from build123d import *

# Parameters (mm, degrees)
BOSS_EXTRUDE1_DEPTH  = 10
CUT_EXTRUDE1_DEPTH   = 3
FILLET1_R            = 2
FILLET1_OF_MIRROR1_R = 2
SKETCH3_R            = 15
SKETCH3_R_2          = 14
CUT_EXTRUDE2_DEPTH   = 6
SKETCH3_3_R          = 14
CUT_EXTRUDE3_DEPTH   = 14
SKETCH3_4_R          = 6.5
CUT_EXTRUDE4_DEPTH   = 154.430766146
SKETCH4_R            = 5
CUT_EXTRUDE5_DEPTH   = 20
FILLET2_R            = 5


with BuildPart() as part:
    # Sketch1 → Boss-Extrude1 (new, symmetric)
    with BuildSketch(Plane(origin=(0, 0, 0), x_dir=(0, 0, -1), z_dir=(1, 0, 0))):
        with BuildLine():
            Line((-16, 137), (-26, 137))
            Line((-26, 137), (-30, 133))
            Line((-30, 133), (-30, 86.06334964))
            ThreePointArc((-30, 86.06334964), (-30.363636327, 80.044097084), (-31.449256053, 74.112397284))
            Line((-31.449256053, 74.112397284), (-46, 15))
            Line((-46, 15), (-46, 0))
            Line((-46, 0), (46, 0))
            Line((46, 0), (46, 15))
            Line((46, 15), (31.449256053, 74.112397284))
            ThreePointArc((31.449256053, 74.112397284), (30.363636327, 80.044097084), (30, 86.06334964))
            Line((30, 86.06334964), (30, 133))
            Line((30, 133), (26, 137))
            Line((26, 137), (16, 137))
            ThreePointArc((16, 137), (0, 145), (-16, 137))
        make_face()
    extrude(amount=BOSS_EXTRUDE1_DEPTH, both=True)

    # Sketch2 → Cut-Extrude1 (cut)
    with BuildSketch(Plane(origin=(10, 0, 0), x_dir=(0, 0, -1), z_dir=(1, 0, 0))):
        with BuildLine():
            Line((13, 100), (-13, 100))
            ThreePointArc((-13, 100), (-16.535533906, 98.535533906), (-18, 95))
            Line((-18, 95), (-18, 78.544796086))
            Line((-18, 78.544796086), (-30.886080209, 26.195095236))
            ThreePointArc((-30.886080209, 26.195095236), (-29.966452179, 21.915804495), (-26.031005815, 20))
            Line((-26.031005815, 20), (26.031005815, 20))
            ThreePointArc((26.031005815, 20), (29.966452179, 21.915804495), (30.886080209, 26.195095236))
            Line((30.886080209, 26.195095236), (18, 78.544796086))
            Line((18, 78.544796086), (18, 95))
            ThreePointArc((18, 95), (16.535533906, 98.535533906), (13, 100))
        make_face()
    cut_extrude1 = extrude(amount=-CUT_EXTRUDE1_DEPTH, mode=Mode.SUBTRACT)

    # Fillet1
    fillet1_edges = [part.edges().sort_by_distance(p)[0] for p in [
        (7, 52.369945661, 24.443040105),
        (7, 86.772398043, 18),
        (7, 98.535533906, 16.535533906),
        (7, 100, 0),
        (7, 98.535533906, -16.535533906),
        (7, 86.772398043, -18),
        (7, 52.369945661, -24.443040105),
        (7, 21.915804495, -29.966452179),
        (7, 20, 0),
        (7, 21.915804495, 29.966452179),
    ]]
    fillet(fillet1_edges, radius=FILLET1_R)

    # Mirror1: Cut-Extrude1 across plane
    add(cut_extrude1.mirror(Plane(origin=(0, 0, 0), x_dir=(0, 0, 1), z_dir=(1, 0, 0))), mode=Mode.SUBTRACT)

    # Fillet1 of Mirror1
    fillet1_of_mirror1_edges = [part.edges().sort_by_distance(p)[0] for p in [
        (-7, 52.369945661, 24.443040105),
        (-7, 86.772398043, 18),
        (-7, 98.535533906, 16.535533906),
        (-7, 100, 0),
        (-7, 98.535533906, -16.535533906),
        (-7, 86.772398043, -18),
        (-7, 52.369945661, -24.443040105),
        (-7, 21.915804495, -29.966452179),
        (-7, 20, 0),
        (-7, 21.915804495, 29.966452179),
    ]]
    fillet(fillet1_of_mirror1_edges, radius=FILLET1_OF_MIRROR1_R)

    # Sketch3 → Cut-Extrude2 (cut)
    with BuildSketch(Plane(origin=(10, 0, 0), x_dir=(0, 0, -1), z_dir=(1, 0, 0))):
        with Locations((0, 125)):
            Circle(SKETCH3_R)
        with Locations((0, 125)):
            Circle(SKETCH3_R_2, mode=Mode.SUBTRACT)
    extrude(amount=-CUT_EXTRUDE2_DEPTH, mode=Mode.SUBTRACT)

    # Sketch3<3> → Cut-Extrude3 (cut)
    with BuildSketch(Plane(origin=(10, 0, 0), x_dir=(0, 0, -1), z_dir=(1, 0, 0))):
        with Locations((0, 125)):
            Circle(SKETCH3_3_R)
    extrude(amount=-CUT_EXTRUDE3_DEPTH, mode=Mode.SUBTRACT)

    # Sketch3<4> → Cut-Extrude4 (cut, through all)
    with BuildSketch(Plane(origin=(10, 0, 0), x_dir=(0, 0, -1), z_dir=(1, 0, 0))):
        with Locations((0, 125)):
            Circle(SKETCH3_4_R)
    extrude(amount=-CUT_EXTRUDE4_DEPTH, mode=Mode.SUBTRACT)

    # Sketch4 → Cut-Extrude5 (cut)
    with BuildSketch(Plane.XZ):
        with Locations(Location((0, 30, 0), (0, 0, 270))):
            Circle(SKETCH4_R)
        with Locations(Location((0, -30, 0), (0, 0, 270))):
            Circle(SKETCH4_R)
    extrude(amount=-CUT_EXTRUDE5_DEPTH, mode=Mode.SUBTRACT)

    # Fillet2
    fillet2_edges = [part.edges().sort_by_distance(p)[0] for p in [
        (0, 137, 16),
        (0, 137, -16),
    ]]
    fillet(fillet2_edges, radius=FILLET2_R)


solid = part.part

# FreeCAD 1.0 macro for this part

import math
import FreeCAD as App
import Part
import Sketcher


def edges_at(feature, points):
    """Names of the edges that pass closest to the given points."""
    edges = feature.Shape.Edges
    near = lambda p: min(range(len(edges)), key=lambda i: edges[i].distToShape(Part.Vertex(*p))[0])
    return sorted({f"Edge{near(p) + 1}" for p in points})

doc = App.newDocument("Part")
body = doc.addObject("PartDesign::Body", "Body")

sketch1 = body.newObject("Sketcher::SketchObject", "Sketch")
sketch1.AttachmentSupport = (doc.getObject("YZ_Plane"), [""])
sketch1.MapMode = "FlatFace"
sketch1.addGeometry(Part.LineSegment(App.Vector(137, 16, 0), App.Vector(137, 26, 0)), False)
sketch1.addGeometry(Part.LineSegment(App.Vector(137, 26, 0), App.Vector(133, 30, 0)), False)
sketch1.addGeometry(Part.LineSegment(App.Vector(133, 30, 0), App.Vector(86, 30, 0)), False)
sketch1.addGeometry(Part.ArcOfCircle(Part.Circle(App.Vector(86, 80, 0), App.Vector(0, 0, 1), 50), math.radians(-103.83), math.radians(-90)), False)
sketch1.addGeometry(Part.LineSegment(App.Vector(74, 31, 0), App.Vector(15, 46, 0)), False)
sketch1.addGeometry(Part.LineSegment(App.Vector(15, 46, 0), App.Vector(0, 46, 0)), False)
sketch1.addGeometry(Part.LineSegment(App.Vector(0, 46, 0), App.Vector(0, -46, 0)), False)
sketch1.addGeometry(Part.LineSegment(App.Vector(0, -46, 0), App.Vector(15, -46, 0)), False)
sketch1.addGeometry(Part.LineSegment(App.Vector(15, -46, 0), App.Vector(74, -31, 0)), False)
sketch1.addGeometry(Part.ArcOfCircle(Part.Circle(App.Vector(86, -80, 0), App.Vector(0, 0, 1), 50), math.radians(90), math.radians(103.83)), False)
sketch1.addGeometry(Part.LineSegment(App.Vector(86, -30, 0), App.Vector(133, -30, 0)), False)
sketch1.addGeometry(Part.LineSegment(App.Vector(133, -30, 0), App.Vector(137, -26, 0)), False)
sketch1.addGeometry(Part.LineSegment(App.Vector(137, -26, 0), App.Vector(137, -16, 0)), False)
sketch1.addGeometry(Part.ArcOfCircle(Part.Circle(App.Vector(125, 0, 0), App.Vector(0, 0, 1), 20), math.radians(-53), math.radians(53)), False)
sketch1.addConstraint(Sketcher.Constraint("Coincident", 0, 2, 1, 1))
sketch1.addConstraint(Sketcher.Constraint("Coincident", 1, 2, 2, 1))
sketch1.addConstraint(Sketcher.Constraint("Tangent", 2, 2, 3, 2))
sketch1.addConstraint(Sketcher.Constraint("Tangent", 3, 1, 4, 1))
sketch1.addConstraint(Sketcher.Constraint("Coincident", 4, 2, 5, 1))
sketch1.addConstraint(Sketcher.Constraint("Coincident", 5, 2, 6, 1))
sketch1.addConstraint(Sketcher.Constraint("Coincident", 6, 2, 7, 1))
sketch1.addConstraint(Sketcher.Constraint("Coincident", 7, 2, 8, 1))
sketch1.addConstraint(Sketcher.Constraint("Tangent", 8, 2, 9, 2))
sketch1.addConstraint(Sketcher.Constraint("Tangent", 9, 1, 10, 1))
sketch1.addConstraint(Sketcher.Constraint("Coincident", 10, 2, 11, 1))
sketch1.addConstraint(Sketcher.Constraint("Coincident", 11, 2, 12, 1))
sketch1.addConstraint(Sketcher.Constraint("Coincident", 12, 2, 13, 1))
sketch1.addConstraint(Sketcher.Constraint("Coincident", 13, 2, 0, 1))
sketch1.addConstraint(Sketcher.Constraint("Vertical", 0))
sketch1.addConstraint(Sketcher.Constraint("Horizontal", 2))
sketch1.addConstraint(Sketcher.Constraint("Horizontal", 5))
sketch1.addConstraint(Sketcher.Constraint("Vertical", 6))
sketch1.addConstraint(Sketcher.Constraint("Horizontal", 7))
sketch1.addConstraint(Sketcher.Constraint("Horizontal", 10))
sketch1.addConstraint(Sketcher.Constraint("Vertical", 12))
sketch1.addConstraint(Sketcher.Constraint("Equal", 3, 9))
sketch1.addConstraint(Sketcher.Constraint("Symmetric", 5, 2, 6, 2, -1, 1))
sketch1.addConstraint(Sketcher.Constraint("Symmetric", 3, 3, 9, 3, -1))
sketch1.addConstraint(Sketcher.Constraint("Symmetric", 0, 2, 11, 2, -1))
sketch1.addConstraint(Sketcher.Constraint("PointOnObject", 13, 3, -1))
sketch1.addConstraint(Sketcher.Constraint("Perpendicular", 1, 11))
sketch1.addConstraint(Sketcher.Constraint("Vertical", 4, 2, 7, 2))
sketch1.addConstraint(Sketcher.Constraint("Vertical", 1, 2, 10, 2))
sketch1.addConstraint(Sketcher.Constraint("Radius", 3, 50.0))
sketch1.addConstraint(Sketcher.Constraint("Radius", 13, 20.0))
sketch1.addConstraint(Sketcher.Constraint("DistanceX", 5, 2, 5, 1, 15.0))
sketch1.addConstraint(Sketcher.Constraint("DistanceY", 0, 1, 0, 2, 10.0))
sketch1.addConstraint(Sketcher.Constraint("DistanceY", 6, 2, 6, 1, 92.0))
sketch1.addConstraint(Sketcher.Constraint("DistanceY", -1, 1, 3, 3, 80.0))
sketch1.addConstraint(Sketcher.Constraint("DistanceX", -1, 1, 13, 3, 125.0))
sketch1.addConstraint(Sketcher.Constraint("DistanceX", -1, 1, 0, 2, 137.0))
sketch1.addConstraint(Sketcher.Constraint("DistanceX", 2, 2, 2, 1, 46.93665))
pad1 = body.newObject("PartDesign::Pad", "Pad")
pad1.Profile = sketch1
pad1.Length = 20
pad1.Midplane = True

sketch2 = body.newObject("Sketcher::SketchObject", "Sketch001")
sketch2.AttachmentSupport = (doc.getObject("YZ_Plane"), [""])
sketch2.MapMode = "FlatFace"
sketch2.AttachmentOffset = App.Placement(App.Vector(0, 0, 10), App.Rotation())
sketch2.addGeometry(Part.LineSegment(App.Vector(100, -13, 0), App.Vector(100, 13, 0)), False)
sketch2.addGeometry(Part.ArcOfCircle(Part.Circle(App.Vector(95, 13, 0), App.Vector(0, 0, 1), 5), math.radians(0), math.radians(90)), False)
sketch2.addGeometry(Part.LineSegment(App.Vector(95, 18, 0), App.Vector(79, 18, 0)), False)
sketch2.addGeometry(Part.LineSegment(App.Vector(79, 18, 0), App.Vector(26, 31, 0)), False)
sketch2.addGeometry(Part.ArcOfCircle(Part.Circle(App.Vector(25, 26, 0), App.Vector(0, 0, 1), 5), math.radians(76), math.radians(180)), False)
sketch2.addGeometry(Part.LineSegment(App.Vector(20, 26, 0), App.Vector(20, -26, 0)), False)
sketch2.addGeometry(Part.ArcOfCircle(Part.Circle(App.Vector(25, -26, 0), App.Vector(0, 0, 1), 5), math.radians(180), math.radians(284)), False)
sketch2.addGeometry(Part.LineSegment(App.Vector(26, -31, 0), App.Vector(79, -18, 0)), False)
sketch2.addGeometry(Part.LineSegment(App.Vector(79, -18, 0), App.Vector(95, -18, 0)), False)
sketch2.addGeometry(Part.ArcOfCircle(Part.Circle(App.Vector(95, -13, 0), App.Vector(0, 0, 1), 5), math.radians(-90), math.radians(0)), False)
sketch2.addConstraint(Sketcher.Constraint("Tangent", 0, 2, 1, 1))
sketch2.addConstraint(Sketcher.Constraint("Tangent", 1, 2, 2, 1))
sketch2.addConstraint(Sketcher.Constraint("Coincident", 2, 2, 3, 1))
sketch2.addConstraint(Sketcher.Constraint("Tangent", 3, 2, 4, 1))
sketch2.addConstraint(Sketcher.Constraint("Tangent", 4, 2, 5, 1))
sketch2.addConstraint(Sketcher.Constraint("Tangent", 5, 2, 6, 1))
sketch2.addConstraint(Sketcher.Constraint("Tangent", 6, 2, 7, 1))
sketch2.addConstraint(Sketcher.Constraint("Coincident", 7, 2, 8, 1))
sketch2.addConstraint(Sketcher.Constraint("Tangent", 8, 2, 9, 1))
sketch2.addConstraint(Sketcher.Constraint("Tangent", 9, 2, 0, 1))
sketch2.addConstraint(Sketcher.Constraint("Vertical", 0))
sketch2.addConstraint(Sketcher.Constraint("Horizontal", 2))
sketch2.addConstraint(Sketcher.Constraint("Vertical", 5))
sketch2.addConstraint(Sketcher.Constraint("Horizontal", 8))
sketch2.addConstraint(Sketcher.Constraint("Equal", 1, 4))
sketch2.addConstraint(Sketcher.Constraint("Equal", 4, 6))
sketch2.addConstraint(Sketcher.Constraint("Equal", 6, 9))
sketch2.addConstraint(Sketcher.Constraint("Symmetric", 3, 2, 6, 2, -1))
sketch2.addConstraint(Sketcher.Constraint("Vertical", 2, 2, 7, 2))
sketch2.addConstraint(Sketcher.Constraint("Radius", 1, 5.0))
sketch2.addConstraint(Sketcher.Constraint("DistanceY", 0, 1, 0, 2, 26.0))
sketch2.addConstraint(Sketcher.Constraint("DistanceX", -1, 1, 1, 3, 95.0))
sketch2.addConstraint(Sketcher.Constraint("DistanceX", -1, 1, 4, 3, 25.0))
sketch2.addConstraint(Sketcher.Constraint("DistanceY", 5, 2, 5, 1, 52.062012))
sketch2.addConstraint(Sketcher.Constraint("DistanceX", 3, 2, 2, 2, 52.349701))
pocket1 = body.newObject("PartDesign::Pocket", "Pocket")
pocket1.Profile = sketch2
pocket1.Length = 3
doc.recompute()

fillet = body.newObject("PartDesign::Fillet", "Fillet")
fillet.Base = (pocket1, edges_at(pocket1, [
    (7, 52.37, 24.443),
    (7, 86.772, 18),
    (7, 98.536, 16.536),
    (7, 100, 0),
    (7, 98.536, -16.536),
    (7, 86.772, -18),
    (7, 52.37, -24.443),
    (7, 21.916, -29.966),
    (7, 20, 0),
    (7, 21.916, 29.966),
]))
fillet.Radius = 2
doc.recompute()

mirrored = body.newObject("PartDesign::Mirrored", "Mirrored")
mirrored.Originals = [pocket1]
mirrored.MirrorPlane = (doc.getObject("YZ_Plane"), [""])
body.Tip = mirrored
doc.recompute()

fillet2 = body.newObject("PartDesign::Fillet", "Fillet001")
fillet2.Base = (mirrored, edges_at(mirrored, [
    (-7, 52.37, 24.443),
    (-7, 86.772, 18),
    (-7, 98.536, 16.536),
    (-7, 100, 0),
    (-7, 98.536, -16.536),
    (-7, 86.772, -18),
    (-7, 52.37, -24.443),
    (-7, 21.916, -29.966),
    (-7, 20, 0),
    (-7, 21.916, 29.966),
]))
fillet2.Radius = 2

sketch3 = body.newObject("Sketcher::SketchObject", "Sketch002")
sketch3.AttachmentSupport = (doc.getObject("YZ_Plane"), [""])
sketch3.MapMode = "FlatFace"
sketch3.AttachmentOffset = App.Placement(App.Vector(0, 0, 10), App.Rotation())
sketch3.addGeometry(Part.Circle(App.Vector(125, 0, 0), App.Vector(0, 0, 1), 15), False)
sketch3.addGeometry(Part.Circle(App.Vector(125, 0, 0), App.Vector(0, 0, 1), 14), False)
sketch3.addConstraint(Sketcher.Constraint("Coincident", 1, 3, 0, 3))
sketch3.addConstraint(Sketcher.Constraint("PointOnObject", 0, 3, -1))
sketch3.addConstraint(Sketcher.Constraint("Diameter", 0, 30.0))
sketch3.addConstraint(Sketcher.Constraint("Diameter", 1, 28.0))
sketch3.addConstraint(Sketcher.Constraint("DistanceX", -1, 1, 0, 3, 125.0))
pocket2 = body.newObject("PartDesign::Pocket", "Pocket001")
pocket2.Profile = sketch3
pocket2.Length = 6

sketch4 = body.newObject("Sketcher::SketchObject", "Sketch003")
sketch4.AttachmentSupport = (doc.getObject("YZ_Plane"), [""])
sketch4.MapMode = "FlatFace"
sketch4.AttachmentOffset = App.Placement(App.Vector(0, 0, 10), App.Rotation())
sketch4.addGeometry(Part.Circle(App.Vector(125, 0, 0), App.Vector(0, 0, 1), 14), False)
sketch4.addConstraint(Sketcher.Constraint("PointOnObject", 0, 3, -1))
sketch4.addConstraint(Sketcher.Constraint("Diameter", 0, 28.0))
sketch4.addConstraint(Sketcher.Constraint("DistanceX", -1, 1, 0, 3, 125.0))
pocket3 = body.newObject("PartDesign::Pocket", "Pocket002")
pocket3.Profile = sketch4
pocket3.Length = 14

sketch5 = body.newObject("Sketcher::SketchObject", "Sketch004")
sketch5.AttachmentSupport = (doc.getObject("YZ_Plane"), [""])
sketch5.MapMode = "FlatFace"
sketch5.AttachmentOffset = App.Placement(App.Vector(0, 0, 10), App.Rotation())
sketch5.addGeometry(Part.Circle(App.Vector(125, 0, 0), App.Vector(0, 0, 1), 6), False)
sketch5.addConstraint(Sketcher.Constraint("PointOnObject", 0, 3, -1))
sketch5.addConstraint(Sketcher.Constraint("Diameter", 0, 13.0))
sketch5.addConstraint(Sketcher.Constraint("DistanceX", -1, 1, 0, 3, 125.0))
pocket4 = body.newObject("PartDesign::Pocket", "Pocket003")
pocket4.Profile = sketch5
pocket4.Type = "ThroughAll"

sketch6 = body.newObject("Sketcher::SketchObject", "Sketch005")
sketch6.AttachmentSupport = (doc.getObject("XZ_Plane"), [""])
sketch6.MapMode = "FlatFace"
sketch6.addGeometry(Part.Circle(App.Vector(0, 30, 0), App.Vector(0, 0, 1), 5), False)
sketch6.addGeometry(Part.Circle(App.Vector(0, -30, 0), App.Vector(0, 0, 1), 5), False)
sketch6.addConstraint(Sketcher.Constraint("Equal", 0, 1))
sketch6.addConstraint(Sketcher.Constraint("Symmetric", 0, 3, 1, 3, -1, 1))
sketch6.addConstraint(Sketcher.Constraint("PointOnObject", 0, 3, -2))
sketch6.addConstraint(Sketcher.Constraint("Diameter", 0, 10.0))
sketch6.addConstraint(Sketcher.Constraint("DistanceY", -1, 1, 0, 3, 30.0))
pocket5 = body.newObject("PartDesign::Pocket", "Pocket004")
pocket5.Profile = sketch6
pocket5.Length = 20
doc.recompute()

fillet3 = body.newObject("PartDesign::Fillet", "Fillet002")
fillet3.Base = (pocket5, edges_at(pocket5, [(0, 137, 16), (0, 137, -16)]))
fillet3.Radius = 5

doc.recompute()
